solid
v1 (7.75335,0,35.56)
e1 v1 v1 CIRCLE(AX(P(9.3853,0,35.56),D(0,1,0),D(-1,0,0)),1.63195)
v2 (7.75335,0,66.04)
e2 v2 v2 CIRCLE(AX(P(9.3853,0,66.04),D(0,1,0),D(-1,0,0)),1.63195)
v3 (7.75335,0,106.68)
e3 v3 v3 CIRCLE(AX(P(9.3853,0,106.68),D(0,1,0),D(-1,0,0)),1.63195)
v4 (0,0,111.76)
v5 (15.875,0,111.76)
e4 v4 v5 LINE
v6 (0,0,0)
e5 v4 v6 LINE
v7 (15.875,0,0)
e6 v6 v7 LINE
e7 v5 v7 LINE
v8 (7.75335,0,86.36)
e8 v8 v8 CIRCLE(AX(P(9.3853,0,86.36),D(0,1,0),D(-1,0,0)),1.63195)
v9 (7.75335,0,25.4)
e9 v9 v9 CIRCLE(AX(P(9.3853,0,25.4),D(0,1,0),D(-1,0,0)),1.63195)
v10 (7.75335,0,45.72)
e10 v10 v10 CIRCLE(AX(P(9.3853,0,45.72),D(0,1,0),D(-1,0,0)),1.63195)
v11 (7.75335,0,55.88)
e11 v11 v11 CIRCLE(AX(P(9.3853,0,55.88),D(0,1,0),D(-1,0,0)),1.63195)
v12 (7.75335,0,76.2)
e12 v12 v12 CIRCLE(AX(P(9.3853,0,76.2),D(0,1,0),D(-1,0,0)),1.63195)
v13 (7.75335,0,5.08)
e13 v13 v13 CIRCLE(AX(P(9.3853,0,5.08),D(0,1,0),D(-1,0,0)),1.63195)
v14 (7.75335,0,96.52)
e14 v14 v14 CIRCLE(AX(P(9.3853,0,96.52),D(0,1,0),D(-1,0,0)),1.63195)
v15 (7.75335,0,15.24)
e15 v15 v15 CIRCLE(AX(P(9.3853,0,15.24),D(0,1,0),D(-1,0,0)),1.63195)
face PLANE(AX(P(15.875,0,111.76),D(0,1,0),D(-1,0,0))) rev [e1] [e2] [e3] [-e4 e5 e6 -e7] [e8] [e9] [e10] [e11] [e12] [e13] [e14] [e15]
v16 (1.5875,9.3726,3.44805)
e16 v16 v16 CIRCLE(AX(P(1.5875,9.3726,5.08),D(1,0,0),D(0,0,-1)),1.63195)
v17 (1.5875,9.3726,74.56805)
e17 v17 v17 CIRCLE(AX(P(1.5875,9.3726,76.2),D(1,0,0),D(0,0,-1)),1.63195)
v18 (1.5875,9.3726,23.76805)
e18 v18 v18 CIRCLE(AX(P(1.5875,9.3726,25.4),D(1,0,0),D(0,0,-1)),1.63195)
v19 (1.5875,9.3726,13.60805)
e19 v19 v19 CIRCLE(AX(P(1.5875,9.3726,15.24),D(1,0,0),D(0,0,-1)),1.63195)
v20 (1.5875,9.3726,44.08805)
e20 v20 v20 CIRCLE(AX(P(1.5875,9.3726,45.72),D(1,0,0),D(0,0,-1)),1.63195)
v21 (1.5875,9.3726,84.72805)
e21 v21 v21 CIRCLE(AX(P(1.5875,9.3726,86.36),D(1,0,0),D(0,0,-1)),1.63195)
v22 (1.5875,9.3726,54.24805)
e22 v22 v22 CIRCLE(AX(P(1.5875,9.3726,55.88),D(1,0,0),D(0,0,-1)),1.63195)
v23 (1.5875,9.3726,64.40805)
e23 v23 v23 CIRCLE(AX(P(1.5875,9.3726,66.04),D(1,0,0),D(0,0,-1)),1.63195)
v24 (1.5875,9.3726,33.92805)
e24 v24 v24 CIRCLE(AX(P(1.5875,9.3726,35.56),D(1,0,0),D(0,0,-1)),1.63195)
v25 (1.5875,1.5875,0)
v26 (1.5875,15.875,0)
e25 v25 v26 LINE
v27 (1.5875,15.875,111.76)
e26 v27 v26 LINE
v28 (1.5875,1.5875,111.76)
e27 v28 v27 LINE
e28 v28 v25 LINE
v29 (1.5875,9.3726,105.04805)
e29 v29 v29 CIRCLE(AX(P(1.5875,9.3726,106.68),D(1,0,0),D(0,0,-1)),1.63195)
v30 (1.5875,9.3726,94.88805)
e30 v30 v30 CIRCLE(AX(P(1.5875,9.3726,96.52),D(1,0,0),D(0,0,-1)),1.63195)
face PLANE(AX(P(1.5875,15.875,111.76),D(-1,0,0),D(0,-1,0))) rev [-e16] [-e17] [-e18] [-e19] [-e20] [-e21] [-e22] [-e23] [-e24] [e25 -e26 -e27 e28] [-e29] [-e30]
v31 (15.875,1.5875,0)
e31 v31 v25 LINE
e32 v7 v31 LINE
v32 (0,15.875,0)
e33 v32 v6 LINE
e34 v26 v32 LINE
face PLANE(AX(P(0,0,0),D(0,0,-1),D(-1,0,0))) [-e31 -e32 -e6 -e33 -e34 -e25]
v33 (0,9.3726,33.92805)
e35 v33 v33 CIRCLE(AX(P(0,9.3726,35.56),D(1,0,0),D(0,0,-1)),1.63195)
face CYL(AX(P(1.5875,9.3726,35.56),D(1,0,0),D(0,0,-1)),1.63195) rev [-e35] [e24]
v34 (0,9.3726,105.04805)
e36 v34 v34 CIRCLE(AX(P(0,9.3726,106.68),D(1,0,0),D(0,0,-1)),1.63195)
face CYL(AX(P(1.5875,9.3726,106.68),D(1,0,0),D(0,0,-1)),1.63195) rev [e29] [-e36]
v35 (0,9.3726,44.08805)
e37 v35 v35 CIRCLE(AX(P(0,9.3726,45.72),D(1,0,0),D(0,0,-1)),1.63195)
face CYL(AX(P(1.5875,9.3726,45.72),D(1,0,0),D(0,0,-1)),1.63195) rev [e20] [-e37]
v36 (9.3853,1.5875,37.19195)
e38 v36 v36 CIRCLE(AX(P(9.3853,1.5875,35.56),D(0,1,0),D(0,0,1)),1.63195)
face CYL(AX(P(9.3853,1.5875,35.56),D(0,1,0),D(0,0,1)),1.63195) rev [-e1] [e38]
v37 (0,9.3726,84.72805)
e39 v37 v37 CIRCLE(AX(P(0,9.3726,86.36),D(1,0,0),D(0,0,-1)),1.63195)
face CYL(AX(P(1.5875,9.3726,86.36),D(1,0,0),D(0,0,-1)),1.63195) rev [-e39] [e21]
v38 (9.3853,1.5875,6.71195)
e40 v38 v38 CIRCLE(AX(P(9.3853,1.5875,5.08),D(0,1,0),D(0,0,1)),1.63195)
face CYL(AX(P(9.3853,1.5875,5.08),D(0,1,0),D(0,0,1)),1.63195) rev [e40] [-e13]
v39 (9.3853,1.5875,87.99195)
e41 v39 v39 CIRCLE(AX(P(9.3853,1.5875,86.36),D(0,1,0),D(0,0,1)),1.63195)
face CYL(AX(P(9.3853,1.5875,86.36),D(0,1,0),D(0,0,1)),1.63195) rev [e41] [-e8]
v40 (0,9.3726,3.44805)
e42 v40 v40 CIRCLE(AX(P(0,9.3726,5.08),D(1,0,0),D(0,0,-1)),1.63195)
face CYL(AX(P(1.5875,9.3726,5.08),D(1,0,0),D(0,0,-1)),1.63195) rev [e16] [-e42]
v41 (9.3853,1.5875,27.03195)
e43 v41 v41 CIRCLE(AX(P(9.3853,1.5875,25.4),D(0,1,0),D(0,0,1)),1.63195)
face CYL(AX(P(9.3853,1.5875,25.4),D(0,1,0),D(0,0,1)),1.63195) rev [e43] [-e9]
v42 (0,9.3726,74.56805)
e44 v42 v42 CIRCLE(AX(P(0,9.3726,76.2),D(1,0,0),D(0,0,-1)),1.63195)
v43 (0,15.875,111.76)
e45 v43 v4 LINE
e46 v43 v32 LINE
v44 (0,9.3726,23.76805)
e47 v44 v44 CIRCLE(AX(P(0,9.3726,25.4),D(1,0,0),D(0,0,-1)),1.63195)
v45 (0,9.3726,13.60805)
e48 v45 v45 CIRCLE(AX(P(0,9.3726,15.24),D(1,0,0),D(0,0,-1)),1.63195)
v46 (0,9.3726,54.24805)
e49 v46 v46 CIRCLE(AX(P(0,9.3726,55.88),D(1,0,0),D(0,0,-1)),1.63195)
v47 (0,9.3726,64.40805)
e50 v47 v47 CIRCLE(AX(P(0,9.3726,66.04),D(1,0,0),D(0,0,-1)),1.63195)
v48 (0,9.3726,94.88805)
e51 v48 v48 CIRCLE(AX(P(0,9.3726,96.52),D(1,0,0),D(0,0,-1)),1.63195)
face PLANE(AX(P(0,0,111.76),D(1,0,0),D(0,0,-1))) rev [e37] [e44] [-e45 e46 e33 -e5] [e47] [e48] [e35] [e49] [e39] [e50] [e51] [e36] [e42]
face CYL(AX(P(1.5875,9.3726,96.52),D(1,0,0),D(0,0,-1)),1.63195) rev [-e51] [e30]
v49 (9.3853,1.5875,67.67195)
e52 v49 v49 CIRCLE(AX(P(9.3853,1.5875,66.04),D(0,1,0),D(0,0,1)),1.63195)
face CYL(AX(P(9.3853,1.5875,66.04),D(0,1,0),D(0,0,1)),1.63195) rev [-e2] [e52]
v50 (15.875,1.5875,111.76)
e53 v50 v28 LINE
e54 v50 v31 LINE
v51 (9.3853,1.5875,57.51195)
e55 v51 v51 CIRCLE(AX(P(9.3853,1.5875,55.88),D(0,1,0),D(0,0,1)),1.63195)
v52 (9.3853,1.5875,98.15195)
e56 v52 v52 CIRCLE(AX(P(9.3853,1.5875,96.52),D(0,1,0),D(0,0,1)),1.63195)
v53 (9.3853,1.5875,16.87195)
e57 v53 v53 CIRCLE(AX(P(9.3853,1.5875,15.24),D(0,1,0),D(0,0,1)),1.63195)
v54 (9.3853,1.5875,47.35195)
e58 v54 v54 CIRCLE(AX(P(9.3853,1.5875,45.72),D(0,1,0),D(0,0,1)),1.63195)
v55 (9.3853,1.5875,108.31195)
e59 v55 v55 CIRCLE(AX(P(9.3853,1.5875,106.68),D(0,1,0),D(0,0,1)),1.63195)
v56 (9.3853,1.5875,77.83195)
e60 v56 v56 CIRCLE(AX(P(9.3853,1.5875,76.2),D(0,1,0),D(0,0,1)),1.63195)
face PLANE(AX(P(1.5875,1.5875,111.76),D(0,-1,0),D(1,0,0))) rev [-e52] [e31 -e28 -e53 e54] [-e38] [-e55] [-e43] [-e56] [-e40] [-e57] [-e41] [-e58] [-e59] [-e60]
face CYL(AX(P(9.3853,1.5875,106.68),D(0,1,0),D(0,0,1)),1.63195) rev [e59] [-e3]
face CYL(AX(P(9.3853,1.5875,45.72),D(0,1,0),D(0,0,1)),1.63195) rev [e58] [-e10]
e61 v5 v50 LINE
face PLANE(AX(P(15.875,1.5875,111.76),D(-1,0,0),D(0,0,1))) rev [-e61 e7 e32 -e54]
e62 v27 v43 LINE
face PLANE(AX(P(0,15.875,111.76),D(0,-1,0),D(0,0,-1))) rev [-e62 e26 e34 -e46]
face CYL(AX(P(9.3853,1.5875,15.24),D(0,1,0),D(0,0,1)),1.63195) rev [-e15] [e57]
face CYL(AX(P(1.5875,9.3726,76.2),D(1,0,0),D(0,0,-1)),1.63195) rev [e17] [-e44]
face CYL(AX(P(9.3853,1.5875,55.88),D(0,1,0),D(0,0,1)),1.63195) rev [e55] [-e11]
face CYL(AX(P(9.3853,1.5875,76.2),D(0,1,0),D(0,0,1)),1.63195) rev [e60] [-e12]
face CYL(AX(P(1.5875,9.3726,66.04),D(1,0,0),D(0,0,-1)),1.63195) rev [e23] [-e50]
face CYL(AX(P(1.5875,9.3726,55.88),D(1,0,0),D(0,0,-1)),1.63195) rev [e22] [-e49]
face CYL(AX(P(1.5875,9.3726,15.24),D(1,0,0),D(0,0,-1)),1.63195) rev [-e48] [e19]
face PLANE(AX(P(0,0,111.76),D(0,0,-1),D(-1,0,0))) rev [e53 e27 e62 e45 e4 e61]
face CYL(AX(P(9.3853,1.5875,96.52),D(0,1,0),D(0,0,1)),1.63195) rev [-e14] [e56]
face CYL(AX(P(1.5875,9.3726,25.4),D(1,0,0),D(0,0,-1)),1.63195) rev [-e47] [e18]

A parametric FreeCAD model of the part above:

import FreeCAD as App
import Part
import Sketcher
Q = App.Units.Quantity


def add_polygon(sketch, points):
    """Adds a closed chain of lines whose ends are joined by coincident constraints."""
    first, n = sketch.GeometryCount, len(points)
    for a, b in zip(points, points[1:] + points[:1]):
        sketch.addGeometry(Part.LineSegment(App.Vector(*a, 0), App.Vector(*b, 0)), False)
    for i in range(n):
        sketch.addConstraint(Sketcher.Constraint("Coincident", first + i, 2, first + (i + 1) % n, 1))

doc = App.newDocument("Part")
params = doc.addObject("Spreadsheet::Sheet", "Params")
for row, (alias, value) in enumerate([
    ("sketch1_width", "0.625 in"),
    ("sketch1_width2", "0.5625 in"),
    ("pad1_length", "4.4 in"),
    ("sketch2_width", "0.6 in"),
    ("groove_angle", "360 deg"),
    ("linearpattern_pitch", "0.4 in"),
    ("linearpattern2_pitch", "0.4 in"),
    ("sketch3_width", "0.6 in"),
    ("groove2_angle", "360 deg"),
    ("linearpattern3_pitch", "0.4 in"),
    ("linearpattern4_pitch", "0.4 in"),
], start=1):
    params.set(f"A{row}", alias)
    params.set(f"B{row}", "=" + value)
    params.setAlias(f"B{row}", alias)

body = doc.addObject("PartDesign::Body", "Body")

# Sketch on XY plane
sketch1 = doc.addObject("Sketcher::SketchObject", "Sketch")
body.addObject(sketch1)
sketch1.AttachmentSupport = (doc.XY_Plane, [""])
sketch1.MapMode = "FlatFace"
add_polygon(sketch1, [(0, 15.9), (0, 0), (15.9, 0), (15.9, 1.6), (1.6, 1.6), (1.6, 15.9)])  # lines 0-5
sketch1.addConstraint(Sketcher.Constraint("Vertical", 0))
sketch1.addConstraint(Sketcher.Constraint("Horizontal", 1))
sketch1.addConstraint(Sketcher.Constraint("Vertical", 2))
sketch1.addConstraint(Sketcher.Constraint("Horizontal", 3))
sketch1.addConstraint(Sketcher.Constraint("Vertical", 4))
sketch1.addConstraint(Sketcher.Constraint("Horizontal", 5))
sketch1.addConstraint(Sketcher.Constraint("Coincident", 0, 2, -1, 1))
sketch1.addConstraint(Sketcher.Constraint("Equal", 1, 0))
sketch1.addConstraint(Sketcher.Constraint("Equal", 5, 2))
sketch1.addConstraint(Sketcher.Constraint("DistanceX", 1, 1, 1, 2, Q("0.625 in")))
sketch1.addConstraint(Sketcher.Constraint("DistanceX", 3, 2, 3, 1, Q("0.5625 in")))
sketch1.setExpression("Constraints[15]", "Params.sketch1_width")
sketch1.setExpression("Constraints[16]", "Params.sketch1_width2")
pad1 = doc.addObject("PartDesign::Pad", "Pad")
body.addObject(pad1)
pad1.Profile = sketch1
pad1.setExpression("Length", "Params.pad1_length")

# Sketch on YZ plane
sketch2 = doc.addObject("Sketcher::SketchObject", "Sketch001")
body.addObject(sketch2)
sketch2.AttachmentSupport = (doc.YZ_Plane, [""])
sketch2.MapMode = "FlatFace"
sketch2.AttachmentOffset = App.Placement(App.Vector(0, 0, 0.3695 * 25.4), App.Rotation())
add_polygon(sketch2, [(-14.6, 55.9), (1.6, 55.9), (1.6, 57.5), (-13.7, 57.5)])  # lines 0-3
sketch2.addGeometry(Part.LineSegment(App.Vector(1.6, 55.9, 0), App.Vector(-14.6, 55.9, 0)), True)  # axis
sketch2.addConstraint(Sketcher.Constraint("Horizontal", 0))
sketch2.addConstraint(Sketcher.Constraint("Vertical", 1))
sketch2.addConstraint(Sketcher.Constraint("Horizontal", 2))
sketch2.addConstraint(Sketcher.Constraint("Horizontal", 4))
sketch2.addConstraint(Sketcher.Constraint("Coincident", 4, 1, 0, 2))
sketch2.addConstraint(Sketcher.Constraint("Equal", 0, 4))
sketch2.addConstraint(Sketcher.Constraint("DistanceX", 2, 2, 2, 1, Q("0.6 in")))
sketch2.addConstraint(Sketcher.Constraint("Angle", 3, Q("-121 deg")))
sketch2.addConstraint(Sketcher.Constraint("DistanceY", -1, 1, 0, 2, Q("2.2 in")))
sketch2.addConstraint(Sketcher.Constraint("DistanceX", -1, 1, 0, 2, Q("0.0625 in")))
sketch2.addConstraint(Sketcher.Constraint("DistanceY", 1, 1, 1, 2, 1.63195))
sketch2.setExpression("Constraints[10]", "Params.sketch2_width")
groove = doc.addObject("PartDesign::Groove", "Groove")
body.addObject(groove)
groove.Profile = sketch2
groove.ReferenceAxis = (sketch2, ["Axis0"])
groove.setExpression("Angle", "Params.groove_angle")
doc.recompute()

linearpattern = doc.addObject("PartDesign::LinearPattern", "LinearPattern")
body.addObject(linearpattern)
linearpattern.Originals = [groove]
linearpattern.Direction = (doc.Z_Axis, [""])
linearpattern.Mode = "offset"
linearpattern.setExpression("Offset", "Params.linearpattern_pitch")
linearpattern.Occurrences = 6
body.Tip = linearpattern
doc.recompute()

linearpattern2 = doc.addObject("PartDesign::LinearPattern", "LinearPattern001")
body.addObject(linearpattern2)
linearpattern2.Originals = [groove]
linearpattern2.Direction = (doc.Z_Axis, [""])
linearpattern2.Mode = "offset"
linearpattern2.setExpression("Offset", "Params.linearpattern2_pitch")
linearpattern2.Occurrences = 6
linearpattern2.Reversed = True
body.Tip = linearpattern2

# Sketch on XZ plane
sketch3 = doc.addObject("Sketcher::SketchObject", "Sketch002")
body.addObject(sketch3)
sketch3.AttachmentSupport = (doc.XZ_Plane, [""])
sketch3.MapMode = "FlatFace"
sketch3.AttachmentOffset = App.Placement(App.Vector(0, 0, -0.369 * 25.4), App.Rotation())
add_polygon(sketch3, [(-14.6, 55.9), (1.6, 55.9), (1.6, 54.2), (-13.7, 54.2)])  # lines 0-3
sketch3.addGeometry(Part.LineSegment(App.Vector(1.6, 55.9, 0), App.Vector(-14.6, 55.9, 0)), True)  # axis
sketch3.addConstraint(Sketcher.Constraint("Horizontal", 0))
sketch3.addConstraint(Sketcher.Constraint("Vertical", 1))
sketch3.addConstraint(Sketcher.Constraint("Horizontal", 2))
sketch3.addConstraint(Sketcher.Constraint("Horizontal", 4))
sketch3.addConstraint(Sketcher.Constraint("Coincident", 4, 1, 0, 2))
sketch3.addConstraint(Sketcher.Constraint("Equal", 0, 4))
sketch3.addConstraint(Sketcher.Constraint("DistanceX", 2, 2, 2, 1, Q("0.6 in")))
sketch3.addConstraint(Sketcher.Constraint("Angle", 3, Q("121 deg")))
sketch3.addConstraint(Sketcher.Constraint("DistanceY", -1, 1, 0, 2, Q("2.2 in")))
sketch3.addConstraint(Sketcher.Constraint("DistanceX", -1, 1, 0, 2, Q("0.0625 in")))
sketch3.addConstraint(Sketcher.Constraint("DistanceY", 1, 2, 1, 1, 1.63195))
sketch3.setExpression("Constraints[10]", "Params.sketch3_width")
groove2 = doc.addObject("PartDesign::Groove", "Groove001")
body.addObject(groove2)
groove2.Profile = sketch3
groove2.ReferenceAxis = (sketch3, ["Axis0"])
groove2.setExpression("Angle", "Params.groove2_angle")
doc.recompute()

linearpattern3 = doc.addObject("PartDesign::LinearPattern", "LinearPattern002")
body.addObject(linearpattern3)
linearpattern3.Originals = [groove2]
linearpattern3.Direction = (doc.Z_Axis, [""])
linearpattern3.Mode = "offset"
linearpattern3.setExpression("Offset", "Params.linearpattern3_pitch")
linearpattern3.Occurrences = 6
body.Tip = linearpattern3
doc.recompute()

linearpattern4 = doc.addObject("PartDesign::LinearPattern", "LinearPattern003")
body.addObject(linearpattern4)
linearpattern4.Originals = [groove2]
linearpattern4.Direction = (doc.Z_Axis, [""])
linearpattern4.Mode = "offset"
linearpattern4.setExpression("Offset", "Params.linearpattern4_pitch")
linearpattern4.Occurrences = 6
linearpattern4.Reversed = True
body.Tip = linearpattern4

doc.recompute()
